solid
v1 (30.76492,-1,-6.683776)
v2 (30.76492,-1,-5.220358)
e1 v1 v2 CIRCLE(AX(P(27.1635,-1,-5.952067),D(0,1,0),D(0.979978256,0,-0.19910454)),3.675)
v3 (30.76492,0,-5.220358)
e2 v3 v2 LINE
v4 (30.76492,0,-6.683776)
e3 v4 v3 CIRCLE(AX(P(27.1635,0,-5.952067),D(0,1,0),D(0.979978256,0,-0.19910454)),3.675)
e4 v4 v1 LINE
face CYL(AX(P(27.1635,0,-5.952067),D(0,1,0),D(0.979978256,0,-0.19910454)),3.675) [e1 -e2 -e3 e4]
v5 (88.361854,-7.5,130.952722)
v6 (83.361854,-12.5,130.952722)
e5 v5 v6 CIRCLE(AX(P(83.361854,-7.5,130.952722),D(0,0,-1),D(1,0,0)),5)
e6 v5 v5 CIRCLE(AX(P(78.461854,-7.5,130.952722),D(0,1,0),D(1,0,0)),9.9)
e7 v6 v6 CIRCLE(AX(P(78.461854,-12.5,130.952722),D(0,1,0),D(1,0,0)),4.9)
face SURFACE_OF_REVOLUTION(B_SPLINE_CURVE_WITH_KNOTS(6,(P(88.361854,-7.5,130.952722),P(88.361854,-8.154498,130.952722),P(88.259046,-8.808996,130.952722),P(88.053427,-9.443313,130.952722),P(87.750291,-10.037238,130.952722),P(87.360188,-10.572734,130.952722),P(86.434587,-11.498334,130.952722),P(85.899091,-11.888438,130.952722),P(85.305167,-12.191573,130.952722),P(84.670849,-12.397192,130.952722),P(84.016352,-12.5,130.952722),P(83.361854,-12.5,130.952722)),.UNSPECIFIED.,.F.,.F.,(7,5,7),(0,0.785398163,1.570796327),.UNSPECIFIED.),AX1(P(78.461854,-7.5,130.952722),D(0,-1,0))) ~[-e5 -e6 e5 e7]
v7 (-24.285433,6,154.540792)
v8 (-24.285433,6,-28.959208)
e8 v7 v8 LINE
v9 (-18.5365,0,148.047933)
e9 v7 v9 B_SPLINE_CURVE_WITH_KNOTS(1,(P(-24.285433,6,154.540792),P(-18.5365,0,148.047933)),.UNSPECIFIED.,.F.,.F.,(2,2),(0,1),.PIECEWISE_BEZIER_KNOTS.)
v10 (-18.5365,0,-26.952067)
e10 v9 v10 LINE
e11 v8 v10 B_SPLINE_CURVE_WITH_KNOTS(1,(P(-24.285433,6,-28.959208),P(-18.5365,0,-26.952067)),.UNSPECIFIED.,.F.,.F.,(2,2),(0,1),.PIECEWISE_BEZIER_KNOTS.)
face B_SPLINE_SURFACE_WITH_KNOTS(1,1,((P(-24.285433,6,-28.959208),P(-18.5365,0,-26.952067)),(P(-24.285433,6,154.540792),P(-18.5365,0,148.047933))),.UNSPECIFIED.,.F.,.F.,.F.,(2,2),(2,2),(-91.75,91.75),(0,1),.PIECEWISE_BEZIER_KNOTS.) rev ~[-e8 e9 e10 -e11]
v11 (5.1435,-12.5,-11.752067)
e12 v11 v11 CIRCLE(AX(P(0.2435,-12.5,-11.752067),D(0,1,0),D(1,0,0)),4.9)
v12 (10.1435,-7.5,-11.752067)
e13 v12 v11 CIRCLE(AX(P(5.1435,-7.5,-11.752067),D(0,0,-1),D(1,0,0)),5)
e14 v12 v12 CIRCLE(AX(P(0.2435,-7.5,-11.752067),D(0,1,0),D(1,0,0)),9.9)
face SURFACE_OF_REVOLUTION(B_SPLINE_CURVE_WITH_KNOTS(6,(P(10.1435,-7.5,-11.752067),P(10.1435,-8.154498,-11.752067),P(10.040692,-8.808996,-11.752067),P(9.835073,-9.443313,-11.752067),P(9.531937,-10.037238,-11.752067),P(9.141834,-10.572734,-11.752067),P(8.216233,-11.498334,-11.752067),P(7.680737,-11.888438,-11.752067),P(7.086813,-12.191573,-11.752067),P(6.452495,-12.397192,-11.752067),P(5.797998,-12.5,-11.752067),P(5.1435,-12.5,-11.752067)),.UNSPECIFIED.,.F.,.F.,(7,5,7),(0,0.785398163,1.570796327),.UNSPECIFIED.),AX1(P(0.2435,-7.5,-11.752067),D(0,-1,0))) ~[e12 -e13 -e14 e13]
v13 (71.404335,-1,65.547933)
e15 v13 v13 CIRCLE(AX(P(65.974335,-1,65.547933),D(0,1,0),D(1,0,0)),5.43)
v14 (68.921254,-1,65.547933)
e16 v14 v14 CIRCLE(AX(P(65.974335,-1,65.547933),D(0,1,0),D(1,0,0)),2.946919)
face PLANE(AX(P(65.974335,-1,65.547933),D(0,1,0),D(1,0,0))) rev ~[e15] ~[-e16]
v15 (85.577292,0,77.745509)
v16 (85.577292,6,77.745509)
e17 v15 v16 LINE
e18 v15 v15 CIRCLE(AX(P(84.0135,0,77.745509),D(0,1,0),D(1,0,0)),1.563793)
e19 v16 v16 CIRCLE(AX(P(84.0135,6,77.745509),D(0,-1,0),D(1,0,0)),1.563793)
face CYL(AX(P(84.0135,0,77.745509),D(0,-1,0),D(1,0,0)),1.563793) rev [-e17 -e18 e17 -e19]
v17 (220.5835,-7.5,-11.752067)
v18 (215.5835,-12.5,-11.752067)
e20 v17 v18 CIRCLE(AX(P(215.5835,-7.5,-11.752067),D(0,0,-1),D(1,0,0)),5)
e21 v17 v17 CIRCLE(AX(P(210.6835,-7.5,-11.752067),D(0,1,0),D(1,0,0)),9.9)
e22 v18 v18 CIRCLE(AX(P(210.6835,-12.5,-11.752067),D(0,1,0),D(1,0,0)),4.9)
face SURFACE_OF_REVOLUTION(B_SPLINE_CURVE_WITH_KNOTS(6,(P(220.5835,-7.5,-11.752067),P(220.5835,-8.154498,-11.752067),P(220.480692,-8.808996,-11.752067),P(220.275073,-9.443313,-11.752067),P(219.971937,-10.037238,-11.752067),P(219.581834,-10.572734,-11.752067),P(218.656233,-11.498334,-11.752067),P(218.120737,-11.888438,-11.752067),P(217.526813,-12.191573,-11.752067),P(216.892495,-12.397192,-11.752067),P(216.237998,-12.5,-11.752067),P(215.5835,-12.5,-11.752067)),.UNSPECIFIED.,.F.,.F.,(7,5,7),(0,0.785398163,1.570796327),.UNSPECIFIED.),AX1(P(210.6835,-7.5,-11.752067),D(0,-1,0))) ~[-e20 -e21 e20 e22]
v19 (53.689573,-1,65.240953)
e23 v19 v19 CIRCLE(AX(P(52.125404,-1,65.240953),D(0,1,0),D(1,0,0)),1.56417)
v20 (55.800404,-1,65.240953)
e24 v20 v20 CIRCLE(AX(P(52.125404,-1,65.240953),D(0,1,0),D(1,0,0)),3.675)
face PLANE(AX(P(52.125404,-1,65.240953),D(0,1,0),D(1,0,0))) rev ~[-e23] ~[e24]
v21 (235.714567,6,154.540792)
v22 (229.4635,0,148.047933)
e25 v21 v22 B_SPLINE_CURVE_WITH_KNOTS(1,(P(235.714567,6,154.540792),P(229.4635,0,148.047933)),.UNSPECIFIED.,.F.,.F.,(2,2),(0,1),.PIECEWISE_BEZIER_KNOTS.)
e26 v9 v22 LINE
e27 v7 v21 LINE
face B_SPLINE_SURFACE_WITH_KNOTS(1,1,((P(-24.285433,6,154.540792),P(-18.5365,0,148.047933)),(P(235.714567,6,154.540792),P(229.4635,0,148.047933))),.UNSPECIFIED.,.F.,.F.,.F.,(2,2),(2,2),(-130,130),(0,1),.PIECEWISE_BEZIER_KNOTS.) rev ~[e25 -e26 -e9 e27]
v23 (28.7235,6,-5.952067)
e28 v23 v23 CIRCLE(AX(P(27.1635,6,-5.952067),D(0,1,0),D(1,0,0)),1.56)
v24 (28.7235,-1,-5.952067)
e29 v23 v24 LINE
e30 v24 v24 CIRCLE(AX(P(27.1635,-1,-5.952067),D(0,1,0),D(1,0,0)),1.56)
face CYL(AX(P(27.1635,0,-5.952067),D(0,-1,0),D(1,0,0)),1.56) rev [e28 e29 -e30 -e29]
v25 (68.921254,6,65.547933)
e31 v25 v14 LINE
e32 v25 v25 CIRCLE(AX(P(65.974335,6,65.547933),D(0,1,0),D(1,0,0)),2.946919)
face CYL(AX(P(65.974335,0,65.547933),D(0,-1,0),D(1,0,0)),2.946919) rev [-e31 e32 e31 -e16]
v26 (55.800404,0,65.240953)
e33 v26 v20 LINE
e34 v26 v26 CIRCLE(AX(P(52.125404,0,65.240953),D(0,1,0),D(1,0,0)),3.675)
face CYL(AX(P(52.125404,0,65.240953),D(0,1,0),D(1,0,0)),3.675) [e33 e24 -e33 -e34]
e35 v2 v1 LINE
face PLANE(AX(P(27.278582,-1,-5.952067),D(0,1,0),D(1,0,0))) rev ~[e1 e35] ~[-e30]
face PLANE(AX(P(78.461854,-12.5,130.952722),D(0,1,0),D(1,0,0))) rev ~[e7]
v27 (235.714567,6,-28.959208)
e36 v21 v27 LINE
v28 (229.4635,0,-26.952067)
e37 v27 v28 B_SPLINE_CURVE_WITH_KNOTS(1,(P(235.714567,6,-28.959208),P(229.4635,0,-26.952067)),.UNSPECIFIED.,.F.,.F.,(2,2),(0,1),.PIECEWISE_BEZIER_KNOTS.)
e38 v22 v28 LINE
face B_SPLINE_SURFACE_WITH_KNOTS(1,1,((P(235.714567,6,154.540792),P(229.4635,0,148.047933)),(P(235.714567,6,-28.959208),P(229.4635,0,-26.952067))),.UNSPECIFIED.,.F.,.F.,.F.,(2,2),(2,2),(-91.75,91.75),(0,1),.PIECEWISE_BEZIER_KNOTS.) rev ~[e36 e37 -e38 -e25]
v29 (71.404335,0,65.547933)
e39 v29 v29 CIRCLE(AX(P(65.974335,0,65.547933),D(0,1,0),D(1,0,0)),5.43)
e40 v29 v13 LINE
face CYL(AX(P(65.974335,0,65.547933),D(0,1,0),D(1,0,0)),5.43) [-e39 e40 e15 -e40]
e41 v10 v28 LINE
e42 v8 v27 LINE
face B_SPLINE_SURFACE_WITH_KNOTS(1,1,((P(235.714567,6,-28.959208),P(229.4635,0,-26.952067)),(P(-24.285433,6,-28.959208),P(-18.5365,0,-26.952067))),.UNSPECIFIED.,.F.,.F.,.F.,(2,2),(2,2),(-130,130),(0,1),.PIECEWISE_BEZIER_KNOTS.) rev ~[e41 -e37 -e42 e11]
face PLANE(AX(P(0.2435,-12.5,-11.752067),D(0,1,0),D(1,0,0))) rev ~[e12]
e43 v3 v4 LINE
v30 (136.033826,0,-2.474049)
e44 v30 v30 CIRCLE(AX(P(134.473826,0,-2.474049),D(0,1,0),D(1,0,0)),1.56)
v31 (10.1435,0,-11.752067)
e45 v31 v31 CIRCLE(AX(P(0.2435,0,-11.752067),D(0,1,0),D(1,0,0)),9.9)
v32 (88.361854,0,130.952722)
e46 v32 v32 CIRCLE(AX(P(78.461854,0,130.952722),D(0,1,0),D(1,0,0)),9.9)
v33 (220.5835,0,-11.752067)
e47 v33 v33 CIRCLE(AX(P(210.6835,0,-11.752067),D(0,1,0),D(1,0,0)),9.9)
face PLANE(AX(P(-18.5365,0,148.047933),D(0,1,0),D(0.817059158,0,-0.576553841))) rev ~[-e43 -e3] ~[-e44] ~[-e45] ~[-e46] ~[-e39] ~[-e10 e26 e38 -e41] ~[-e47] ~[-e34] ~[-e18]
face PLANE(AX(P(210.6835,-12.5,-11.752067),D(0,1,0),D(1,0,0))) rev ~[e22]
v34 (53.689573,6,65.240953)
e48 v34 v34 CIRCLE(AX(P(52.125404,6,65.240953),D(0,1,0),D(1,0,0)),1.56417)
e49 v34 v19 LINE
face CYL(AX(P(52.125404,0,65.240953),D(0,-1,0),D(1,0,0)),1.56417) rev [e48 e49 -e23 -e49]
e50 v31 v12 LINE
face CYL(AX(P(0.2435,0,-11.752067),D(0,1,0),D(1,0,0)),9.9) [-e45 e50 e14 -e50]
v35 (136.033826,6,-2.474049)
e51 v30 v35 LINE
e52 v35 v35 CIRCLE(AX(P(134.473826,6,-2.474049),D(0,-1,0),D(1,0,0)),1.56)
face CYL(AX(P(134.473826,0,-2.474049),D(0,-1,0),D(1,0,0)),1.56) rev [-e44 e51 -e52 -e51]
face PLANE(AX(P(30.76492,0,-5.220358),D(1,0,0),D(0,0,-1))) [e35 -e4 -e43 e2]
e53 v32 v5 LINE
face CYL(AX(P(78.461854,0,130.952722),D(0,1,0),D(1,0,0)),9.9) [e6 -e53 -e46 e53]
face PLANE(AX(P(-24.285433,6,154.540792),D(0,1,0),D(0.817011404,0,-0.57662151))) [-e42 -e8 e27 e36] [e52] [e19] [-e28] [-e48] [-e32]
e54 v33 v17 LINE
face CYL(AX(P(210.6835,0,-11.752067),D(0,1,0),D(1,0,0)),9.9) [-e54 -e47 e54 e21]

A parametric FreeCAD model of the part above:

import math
import FreeCAD as App
import Part
import Sketcher

V = App.Vector
Q = App.Units.Quantity


def edges_at(feature, points):
    """Names of the edges that pass closest to the given points."""
    edges = feature.Shape.Edges
    near = lambda p: min(range(len(edges)), key=lambda i: edges[i].distToShape(Part.Vertex(*p))[0])
    return sorted({f"Edge{near(p) + 1}" for p in points})


def add_polygon(sketch, points):
    """Adds a closed chain of lines whose ends are joined by coincident constraints."""
    first, n = sketch.GeometryCount, len(points)
    for a, b in zip(points, points[1:] + points[:1]):
        sketch.addGeometry(Part.LineSegment(App.Vector(*a, 0), App.Vector(*b, 0)), False)
    for i in range(n):
        sketch.addConstraint(Sketcher.Constraint("Coincident", first + i, 2, first + (i + 1) % n, 1))

doc = App.newDocument("Part")
body = doc.addObject("PartDesign::Body", "Body")

sketch1 = body.newObject("Sketcher::SketchObject", "Sketch")
sketch1.AttachmentSupport = (doc.getObject("XZ_Plane"), [""])
sketch1.MapMode = "FlatFace"
sketch1.AttachmentOffset = App.Placement(V(0, 0, -6), App.Rotation())
add_polygon(sketch1, [(-24, -29), (-24, 155), (236, 155), (236, -29)])
sketch1.addConstraint([
    Sketcher.Constraint("Vertical", 0),
    Sketcher.Constraint("Horizontal", 1),
    Sketcher.Constraint("Vertical", 2),
    Sketcher.Constraint("Horizontal", 3),
    Sketcher.Constraint("DistanceX", 1, 1, 1, 2, Q("260 mm")),
    Sketcher.Constraint("DistanceY", 0, 1, 0, 2, Q("183.5 mm")),
    Sketcher.Constraint("DistanceX", 0, 2, -1, 1, Q("24.285433 mm")),
    Sketcher.Constraint("DistanceY", -1, 1, 0, 2, Q("154.540792 mm")),
])

sketch2 = body.newObject("Sketcher::SketchObject", "Sketch001")
sketch2.AttachmentSupport = (doc.getObject("XZ_Plane"), [""])
sketch2.MapMode = "FlatFace"
add_polygon(sketch2, [(-19, -27), (-19, 148), (229, 148), (229, -27)])
sketch2.addConstraint([
    Sketcher.Constraint("Vertical", 0),
    Sketcher.Constraint("Horizontal", 1),
    Sketcher.Constraint("Vertical", 2),
    Sketcher.Constraint("Horizontal", 3),
    Sketcher.Constraint("DistanceX", 1, 1, 1, 2, Q("248 mm")),
    Sketcher.Constraint("DistanceY", 0, 1, 0, 2, Q("175 mm")),
    Sketcher.Constraint("DistanceX", 0, 2, -1, 1, Q("18.5365 mm")),
    Sketcher.Constraint("DistanceY", -1, 1, 0, 2, Q("148.047933 mm")),
])

additiveloft = body.newObject("PartDesign::AdditiveLoft", "AdditiveLoft")
additiveloft.Profile = sketch1
additiveloft.Sections = [sketch2]

sketch3 = body.newObject("Sketcher::SketchObject", "Sketch002")
sketch3.AttachmentSupport = (doc.getObject("XZ_Plane"), [""])
sketch3.MapMode = "FlatFace"
sketch3.addGeometry(Part.Circle(V(52.1, 65.2, 0), V(0, 0, 1), 1.6), False)
sketch3.addConstraint([
    Sketcher.Constraint("Diameter", 0, Q("3.128339 mm")),
    Sketcher.Constraint("DistanceX", -1, 1, 0, 3, Q("52.125404 mm")),
    Sketcher.Constraint("DistanceY", -1, 1, 0, 3, Q("65.240953 mm")),
])
pocket1 = body.newObject("PartDesign::Pocket", "Pocket")
pocket1.Profile = sketch3
pocket1.Length = 6

sketch4 = body.newObject("Sketcher::SketchObject", "Sketch003")
sketch4.AttachmentSupport = (doc.getObject("XZ_Plane"), [""])
sketch4.MapMode = "FlatFace"
sketch4.addGeometry([
    Part.Circle(V(27.2, -6, 0), V(0, 0, 1), 1.6),
    Part.Circle(V(66, 65.5, 0), V(0, 0, 1), 2.9),
], False)
sketch4.addConstraint([
    Sketcher.Constraint("Diameter", 0, Q("3.12 mm")),
    Sketcher.Constraint("DistanceY", 0, 3, 1, 3, Q("71.5 mm")),
    Sketcher.Constraint("Diameter", 1, Q("5.893838 mm")),
    Sketcher.Constraint("DistanceX", -1, 1, 0, 3, Q("27.1635 mm")),
    Sketcher.Constraint("DistanceY", 0, 3, -1, 1, Q("5.952067 mm")),
    Sketcher.Constraint("DistanceX", -1, 1, 1, 3, Q("65.974335 mm")),
])
pocket2 = body.newObject("PartDesign::Pocket", "Pocket001")
pocket2.Profile = sketch4
pocket2.Length = 6

sketch5 = body.newObject("Sketcher::SketchObject", "Sketch004")
sketch5.AttachmentSupport = (doc.getObject("XZ_Plane"), [""])
sketch5.MapMode = "FlatFace"
sketch5.addGeometry([
    Part.ArcOfCircle(Part.Circle(V(27.2, -6, 0), V(0, 0, 1), 3.7), math.radians(11), math.radians(349)),
    Part.LineSegment(V(30.8, -5.2, 0), V(30.8, -6.7, 0)),
    Part.Circle(V(27.2, -6, 0), V(0, 0, 1), 1.6),
    Part.Circle(V(52.1, 65.2, 0), V(0, 0, 1), 3.7),
    Part.Circle(V(52.1, 65.2, 0), V(0, 0, 1), 1.6),
    Part.Circle(V(66, 65.5, 0), V(0, 0, 1), 5.4),
    Part.Circle(V(66, 65.5, 0), V(0, 0, 1), 2.9),
], False)
sketch5.addConstraint([
    Sketcher.Constraint("Coincident", 0, 1, 1, 1),
    Sketcher.Constraint("Coincident", 1, 2, 0, 2),
    Sketcher.Constraint("Vertical", 1),
    Sketcher.Constraint("Coincident", 2, 3, 0, 3),
    Sketcher.Constraint("Coincident", 4, 3, 3, 3),
    Sketcher.Constraint("Coincident", 6, 3, 5, 3),
    Sketcher.Constraint("Equal", 0, 3),
    Sketcher.Constraint("Diameter", 2, Q("3.12 mm")),
    Sketcher.Constraint("Diameter", 3, Q("7.35 mm")),
    Sketcher.Constraint("Diameter", 5, Q("10.86 mm")),
    Sketcher.Constraint("DistanceY", 0, 3, 5, 3, Q("71.5 mm")),
    Sketcher.Constraint("Diameter", 4, Q("3.128339 mm")),
    Sketcher.Constraint("Diameter", 6, Q("5.893838 mm")),
    Sketcher.Constraint("DistanceY", 1, 2, 1, 1, Q("1.463418 mm")),
    Sketcher.Constraint("DistanceX", -1, 1, 0, 3, Q("27.1635 mm")),
    Sketcher.Constraint("DistanceY", 0, 3, 3, 3, Q("71.19302 mm")),
    Sketcher.Constraint("DistanceX", 3, 3, 5, 3, Q("13.848931 mm")),
    Sketcher.Constraint("DistanceY", 0, 3, -1, 1, Q("5.952067 mm")),
    Sketcher.Constraint("DistanceX", -1, 1, 3, 3, Q("52.125404 mm")),
])
pad1 = body.newObject("PartDesign::Pad", "Pad")
pad1.Profile = sketch5
pad1.Length = 1

sketch6 = body.newObject("Sketcher::SketchObject", "Sketch005")
sketch6.AttachmentSupport = (doc.getObject("XZ_Plane"), [""])
sketch6.MapMode = "FlatFace"
sketch6.addGeometry(Part.Circle(V(134.5, -2.5, 0), V(0, 0, 1), 1.6), False)
sketch6.addConstraint([
    Sketcher.Constraint("Diameter", 0, Q("3.12 mm")),
    Sketcher.Constraint("DistanceY", 0, 3, -1, 1, Q("2.474049 mm")),
    Sketcher.Constraint("DistanceX", -1, 1, 0, 3, Q("134.473826 mm")),
])
pocket3 = body.newObject("PartDesign::Pocket", "Pocket002")
pocket3.Profile = sketch6
pocket3.Length = 10

sketch7 = body.newObject("Sketcher::SketchObject", "Sketch006")
sketch7.AttachmentSupport = (doc.getObject("XZ_Plane"), [""])
sketch7.MapMode = "FlatFace"
sketch7.addGeometry(Part.Circle(V(84, 77.7, 0), V(0, 0, 1), 1.6), False)
sketch7.addConstraint([
    Sketcher.Constraint("Diameter", 0, Q("3.127586 mm")),
    Sketcher.Constraint("DistanceX", -1, 1, 0, 3, Q("84.0135 mm")),
    Sketcher.Constraint("DistanceY", -1, 1, 0, 3, Q("77.745509 mm")),
])
pocket4 = body.newObject("PartDesign::Pocket", "Pocket003")
pocket4.Profile = sketch7
pocket4.Length = 10

sketch8 = body.newObject("Sketcher::SketchObject", "Sketch007")
sketch8.AttachmentSupport = (doc.getObject("XZ_Plane"), [""])
sketch8.MapMode = "FlatFace"
sketch8.addGeometry([
    Part.Circle(V(211, -12, 0), V(0, 0, 1), 10),
    Part.Circle(V(78, 131, 0), V(0, 0, 1), 10),
    Part.Circle(V(0, -12, 0), V(0, 0, 1), 10),
], False)
sketch8.addConstraint([
    Sketcher.Constraint("Equal", 0, 1),
    Sketcher.Constraint("Equal", 1, 2),
    Sketcher.Constraint("Horizontal", 0, 3, 2, 3),
    Sketcher.Constraint("Diameter", 0, Q("19.8 mm")),
    Sketcher.Constraint("DistanceX", 2, 3, 0, 3, Q("210.44 mm")),
    Sketcher.Constraint("DistanceX", -1, 1, 0, 3, Q("210.6835 mm")),
    Sketcher.Constraint("DistanceY", 0, 3, 1, 3, Q("142.704789 mm")),
    Sketcher.Constraint("DistanceY", 0, 3, -1, 1, Q("11.752067 mm")),
    Sketcher.Constraint("DistanceX", -1, 1, 1, 3, Q("78.461854 mm")),
])
pad2 = body.newObject("PartDesign::Pad", "Pad001")
pad2.Profile = sketch8
pad2.Length = 12.5
doc.recompute()

fillet = body.newObject("PartDesign::Fillet", "Fillet")
fillet.Base = (pad2, edges_at(pad2, [(200.783, -12.5, -11.752), (68.562, -12.5, 130.953), (-9.657, -12.5, -11.752)]))
fillet.Radius = 5

doc.recompute()
